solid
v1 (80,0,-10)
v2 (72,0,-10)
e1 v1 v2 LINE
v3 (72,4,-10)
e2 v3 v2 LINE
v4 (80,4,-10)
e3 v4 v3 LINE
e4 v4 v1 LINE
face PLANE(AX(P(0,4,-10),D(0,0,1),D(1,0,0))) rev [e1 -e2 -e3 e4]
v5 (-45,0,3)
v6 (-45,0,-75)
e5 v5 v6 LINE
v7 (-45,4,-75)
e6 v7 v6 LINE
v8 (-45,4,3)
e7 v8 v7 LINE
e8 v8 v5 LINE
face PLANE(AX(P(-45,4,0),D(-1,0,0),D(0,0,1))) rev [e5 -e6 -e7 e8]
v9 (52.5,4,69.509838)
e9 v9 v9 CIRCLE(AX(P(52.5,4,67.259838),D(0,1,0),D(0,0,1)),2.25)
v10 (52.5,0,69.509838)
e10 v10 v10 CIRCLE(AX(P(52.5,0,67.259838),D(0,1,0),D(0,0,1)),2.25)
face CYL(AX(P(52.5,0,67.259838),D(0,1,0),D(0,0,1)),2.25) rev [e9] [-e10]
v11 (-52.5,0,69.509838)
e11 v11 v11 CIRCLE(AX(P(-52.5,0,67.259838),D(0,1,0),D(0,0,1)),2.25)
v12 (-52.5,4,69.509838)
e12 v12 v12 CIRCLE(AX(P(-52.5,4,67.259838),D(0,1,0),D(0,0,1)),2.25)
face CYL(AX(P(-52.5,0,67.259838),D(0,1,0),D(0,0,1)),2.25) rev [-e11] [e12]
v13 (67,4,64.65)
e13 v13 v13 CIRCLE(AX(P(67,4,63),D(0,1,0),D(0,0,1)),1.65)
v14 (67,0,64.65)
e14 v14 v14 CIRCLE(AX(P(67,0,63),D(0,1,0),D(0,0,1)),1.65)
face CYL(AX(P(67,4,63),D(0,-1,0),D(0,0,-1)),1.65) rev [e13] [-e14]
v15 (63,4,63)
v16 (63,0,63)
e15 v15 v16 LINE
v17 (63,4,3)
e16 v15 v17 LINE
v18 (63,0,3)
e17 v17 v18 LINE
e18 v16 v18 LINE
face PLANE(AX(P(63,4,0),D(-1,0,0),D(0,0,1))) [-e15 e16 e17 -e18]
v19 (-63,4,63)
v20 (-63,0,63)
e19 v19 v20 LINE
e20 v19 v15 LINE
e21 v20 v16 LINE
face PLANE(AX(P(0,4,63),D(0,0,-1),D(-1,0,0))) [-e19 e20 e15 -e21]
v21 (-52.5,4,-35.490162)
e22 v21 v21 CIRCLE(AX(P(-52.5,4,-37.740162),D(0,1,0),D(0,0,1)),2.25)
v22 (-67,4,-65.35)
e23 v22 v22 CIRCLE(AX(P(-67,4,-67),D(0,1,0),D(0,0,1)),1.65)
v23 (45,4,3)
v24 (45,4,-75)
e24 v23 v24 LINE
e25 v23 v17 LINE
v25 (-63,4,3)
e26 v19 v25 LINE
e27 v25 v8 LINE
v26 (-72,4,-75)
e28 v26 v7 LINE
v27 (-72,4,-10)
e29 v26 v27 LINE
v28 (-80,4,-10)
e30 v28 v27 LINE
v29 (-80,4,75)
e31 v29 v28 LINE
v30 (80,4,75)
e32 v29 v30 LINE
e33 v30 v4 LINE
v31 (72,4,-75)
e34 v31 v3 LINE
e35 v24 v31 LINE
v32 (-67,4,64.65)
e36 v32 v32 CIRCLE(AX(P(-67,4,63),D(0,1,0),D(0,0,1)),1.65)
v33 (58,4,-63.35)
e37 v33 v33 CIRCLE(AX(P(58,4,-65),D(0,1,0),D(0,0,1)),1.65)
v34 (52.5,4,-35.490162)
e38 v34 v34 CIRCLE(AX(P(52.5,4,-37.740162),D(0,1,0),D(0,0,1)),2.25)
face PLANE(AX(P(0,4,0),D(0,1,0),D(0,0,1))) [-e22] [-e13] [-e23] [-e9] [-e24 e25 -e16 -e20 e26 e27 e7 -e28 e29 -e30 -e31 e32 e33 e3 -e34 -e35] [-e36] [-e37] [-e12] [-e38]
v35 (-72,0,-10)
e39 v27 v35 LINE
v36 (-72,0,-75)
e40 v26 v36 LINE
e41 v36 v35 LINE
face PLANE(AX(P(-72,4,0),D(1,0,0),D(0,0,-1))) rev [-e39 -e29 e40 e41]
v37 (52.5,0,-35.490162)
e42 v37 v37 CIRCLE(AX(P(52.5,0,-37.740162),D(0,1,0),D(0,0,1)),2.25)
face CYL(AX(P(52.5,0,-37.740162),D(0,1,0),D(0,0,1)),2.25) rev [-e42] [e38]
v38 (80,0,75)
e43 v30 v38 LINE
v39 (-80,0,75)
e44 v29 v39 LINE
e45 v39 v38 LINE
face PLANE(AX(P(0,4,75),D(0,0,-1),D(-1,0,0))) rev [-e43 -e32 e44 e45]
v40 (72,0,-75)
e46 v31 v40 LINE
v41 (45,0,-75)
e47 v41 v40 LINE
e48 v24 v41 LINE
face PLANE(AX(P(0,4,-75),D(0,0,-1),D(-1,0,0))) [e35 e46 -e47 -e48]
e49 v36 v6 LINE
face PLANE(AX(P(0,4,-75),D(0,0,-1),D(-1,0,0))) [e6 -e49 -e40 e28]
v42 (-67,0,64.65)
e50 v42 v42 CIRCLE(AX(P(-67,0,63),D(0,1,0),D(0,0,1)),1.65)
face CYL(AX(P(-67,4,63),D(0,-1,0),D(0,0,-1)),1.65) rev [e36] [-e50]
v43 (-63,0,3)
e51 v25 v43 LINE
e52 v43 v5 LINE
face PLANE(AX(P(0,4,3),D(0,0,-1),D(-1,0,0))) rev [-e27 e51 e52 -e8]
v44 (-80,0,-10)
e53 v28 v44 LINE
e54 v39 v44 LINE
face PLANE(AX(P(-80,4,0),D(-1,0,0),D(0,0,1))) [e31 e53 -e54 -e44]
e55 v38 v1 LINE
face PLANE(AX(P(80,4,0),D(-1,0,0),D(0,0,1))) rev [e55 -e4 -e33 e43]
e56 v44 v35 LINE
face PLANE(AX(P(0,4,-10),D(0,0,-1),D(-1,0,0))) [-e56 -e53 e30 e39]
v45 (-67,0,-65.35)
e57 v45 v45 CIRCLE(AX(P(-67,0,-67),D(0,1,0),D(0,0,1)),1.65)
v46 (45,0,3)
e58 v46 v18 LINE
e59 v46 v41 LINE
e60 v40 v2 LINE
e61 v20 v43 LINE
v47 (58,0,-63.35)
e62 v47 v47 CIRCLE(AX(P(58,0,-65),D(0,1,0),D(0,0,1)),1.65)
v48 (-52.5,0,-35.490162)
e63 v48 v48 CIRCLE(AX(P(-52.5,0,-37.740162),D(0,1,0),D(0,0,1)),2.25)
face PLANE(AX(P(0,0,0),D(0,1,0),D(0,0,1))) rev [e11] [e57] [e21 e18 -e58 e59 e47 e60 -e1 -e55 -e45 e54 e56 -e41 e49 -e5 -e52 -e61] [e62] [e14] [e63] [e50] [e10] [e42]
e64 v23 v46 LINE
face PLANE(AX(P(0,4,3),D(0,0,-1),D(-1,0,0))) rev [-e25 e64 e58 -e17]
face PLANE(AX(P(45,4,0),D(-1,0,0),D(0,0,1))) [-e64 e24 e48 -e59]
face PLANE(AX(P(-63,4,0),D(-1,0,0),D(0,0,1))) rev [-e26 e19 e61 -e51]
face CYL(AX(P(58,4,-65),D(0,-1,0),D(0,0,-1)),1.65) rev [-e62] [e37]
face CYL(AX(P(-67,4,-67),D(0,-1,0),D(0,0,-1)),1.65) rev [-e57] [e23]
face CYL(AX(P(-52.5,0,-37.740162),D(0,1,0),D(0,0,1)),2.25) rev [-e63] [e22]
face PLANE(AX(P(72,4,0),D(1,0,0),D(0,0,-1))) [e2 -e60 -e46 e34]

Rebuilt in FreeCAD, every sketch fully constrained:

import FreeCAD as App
import Part
import Sketcher

V = App.Vector
Q = App.Units.Quantity


def add_polygon(sketch, points):
    """Adds a closed chain of lines whose ends are joined by coincident constraints."""
    first, n = sketch.GeometryCount, len(points)
    for a, b in zip(points, points[1:] + points[:1]):
        sketch.addGeometry(Part.LineSegment(App.Vector(*a, 0), App.Vector(*b, 0)), False)
    for i in range(n):
        sketch.addConstraint(Sketcher.Constraint("Coincident", first + i, 2, first + (i + 1) % n, 1))

doc = App.newDocument("Part")
body = doc.addObject("PartDesign::Body", "Body")

sketch1 = body.newObject("Sketcher::SketchObject", "Sketch")
sketch1.AttachmentSupport = (doc.getObject("XZ_Plane"), [""])
sketch1.MapMode = "FlatFace"
add_polygon(sketch1, [(-80, -10), (-80, 75), (80, 75), (80, -10), (72, -10), (72, -75), (45, -75), (45, 3), (63, 3), (63, 63), (-63, 63), (-63, 3), (-45, 3), (-45, -75), (-72, -75), (-72, -10)])
sketch1.addGeometry(Part.Circle(V(-67, 63, 0), V(0, 0, 1), 1.65), False)
sketch1.addGeometry(Part.Circle(V(67, 63, 0), V(0, 0, 1), 1.65), False)
sketch1.addGeometry(Part.Circle(V(-67, -67, 0), V(0, 0, 1), 1.65), False)
sketch1.addGeometry(Part.Circle(V(58, -65, 0), V(0, 0, 1), 1.65), False)
sketch1.addConstraint(Sketcher.Constraint("Vertical", 0))
sketch1.addConstraint(Sketcher.Constraint("Horizontal", 1))
sketch1.addConstraint(Sketcher.Constraint("Vertical", 2))
sketch1.addConstraint(Sketcher.Constraint("Horizontal", 3))
sketch1.addConstraint(Sketcher.Constraint("Vertical", 4))
sketch1.addConstraint(Sketcher.Constraint("Horizontal", 5))
sketch1.addConstraint(Sketcher.Constraint("Vertical", 6))
sketch1.addConstraint(Sketcher.Constraint("Horizontal", 7))
sketch1.addConstraint(Sketcher.Constraint("Vertical", 8))
sketch1.addConstraint(Sketcher.Constraint("Horizontal", 9))
sketch1.addConstraint(Sketcher.Constraint("Vertical", 10))
sketch1.addConstraint(Sketcher.Constraint("Horizontal", 11))
sketch1.addConstraint(Sketcher.Constraint("Vertical", 12))
sketch1.addConstraint(Sketcher.Constraint("Horizontal", 13))
sketch1.addConstraint(Sketcher.Constraint("Vertical", 14))
sketch1.addConstraint(Sketcher.Constraint("Horizontal", 15))
sketch1.addConstraint(Sketcher.Constraint("Equal", 16, 17))
sketch1.addConstraint(Sketcher.Constraint("Equal", 17, 18))
sketch1.addConstraint(Sketcher.Constraint("Equal", 18, 19))
sketch1.addConstraint(Sketcher.Constraint("Symmetric", 16, 3, 17, 3, -2))
sketch1.addConstraint(Sketcher.Constraint("Symmetric", 7, 2, 10, 2, -2))
sketch1.addConstraint(Sketcher.Constraint("Symmetric", 5, 2, 12, 2, -2))
sketch1.addConstraint(Sketcher.Constraint("Symmetric", 3, 2, 14, 2, -2))
sketch1.addConstraint(Sketcher.Constraint("Horizontal", 17, 3, 8, 2))
sketch1.addConstraint(Sketcher.Constraint("Vertical", 16, 3, 18, 3))
sketch1.addConstraint(Sketcher.Constraint("Equal", 3, 15))
sketch1.addConstraint(Sketcher.Constraint("Diameter", 16, Q("3.3 mm")))
sketch1.addConstraint(Sketcher.Constraint("DistanceX", 1, 1, 1, 2, Q("160 mm")))
sketch1.addConstraint(Sketcher.Constraint("DistanceX", 3, 2, 3, 1, Q("8 mm")))
sketch1.addConstraint(Sketcher.Constraint("DistanceX", 5, 2, 5, 1, Q("27 mm")))
sketch1.addConstraint(Sketcher.Constraint("DistanceX", 7, 1, 7, 2, Q("18 mm")))
sketch1.addConstraint(Sketcher.Constraint("DistanceY", 0, 1, 0, 2, Q("85 mm")))
sketch1.addConstraint(Sketcher.Constraint("DistanceY", 4, 2, 4, 1, Q("65 mm")))
sketch1.addConstraint(Sketcher.Constraint("DistanceY", 6, 1, 6, 2, Q("78 mm")))
sketch1.addConstraint(Sketcher.Constraint("DistanceY", 8, 1, 8, 2, Q("60 mm")))
sketch1.addConstraint(Sketcher.Constraint("DistanceX", 16, 3, -1, 1, Q("67 mm")))
sketch1.addConstraint(Sketcher.Constraint("DistanceY", -1, 1, 16, 3, Q("63 mm")))
sketch1.addConstraint(Sketcher.Constraint("DistanceY", 18, 3, -1, 1, Q("67 mm")))
sketch1.addConstraint(Sketcher.Constraint("DistanceX", -1, 1, 19, 3, Q("58 mm")))
sketch1.addConstraint(Sketcher.Constraint("DistanceY", 19, 3, -1, 1, Q("65 mm")))
pad1 = body.newObject("PartDesign::Pad", "Pad")
pad1.Profile = sketch1
pad1.Length = 4
pad1.Reversed = True

sketch2 = body.newObject("Sketcher::SketchObject", "Sketch001")
sketch2.AttachmentSupport = (doc.getObject("XZ_Plane"), [""])
sketch2.MapMode = "FlatFace"
sketch2.AttachmentOffset = App.Placement(V(0, 0, -4), App.Rotation())
sketch2.addGeometry(Part.Circle(V(52.5, 67.259838, 0), V(0, 0, 1), 2.25), False)
sketch2.addGeometry(Part.Circle(V(-52.5, 67.259838, 0), V(0, 0, 1), 2.25), False)
sketch2.addGeometry(Part.Circle(V(52.5, -37.740162, 0), V(0, 0, 1), 2.25), False)
sketch2.addGeometry(Part.Circle(V(-52.5, -37.740162, 0), V(0, 0, 1), 2.25), False)
sketch2.addConstraint(Sketcher.Constraint("Equal", 0, 1))
sketch2.addConstraint(Sketcher.Constraint("Equal", 1, 2))
sketch2.addConstraint(Sketcher.Constraint("Equal", 2, 3))
sketch2.addConstraint(Sketcher.Constraint("Symmetric", 0, 3, 1, 3, -2))
sketch2.addConstraint(Sketcher.Constraint("Symmetric", 2, 3, 3, 3, -2))
sketch2.addConstraint(Sketcher.Constraint("Vertical", 0, 3, 2, 3))
sketch2.addConstraint(Sketcher.Constraint("Diameter", 0, Q("4.5 mm")))
sketch2.addConstraint(Sketcher.Constraint("DistanceX", 1, 3, 0, 3, Q("105 mm")))
sketch2.addConstraint(Sketcher.Constraint("DistanceY", 2, 3, 0, 3, Q("105 mm")))
sketch2.addConstraint(Sketcher.Constraint("DistanceY", -1, 1, 0, 3, Q("67.259838 mm")))
pocket1 = body.newObject("PartDesign::Pocket", "Pocket")
pocket1.Profile = sketch2
pocket1.Length = 4
pocket1.Reversed = True

doc.recompute()
